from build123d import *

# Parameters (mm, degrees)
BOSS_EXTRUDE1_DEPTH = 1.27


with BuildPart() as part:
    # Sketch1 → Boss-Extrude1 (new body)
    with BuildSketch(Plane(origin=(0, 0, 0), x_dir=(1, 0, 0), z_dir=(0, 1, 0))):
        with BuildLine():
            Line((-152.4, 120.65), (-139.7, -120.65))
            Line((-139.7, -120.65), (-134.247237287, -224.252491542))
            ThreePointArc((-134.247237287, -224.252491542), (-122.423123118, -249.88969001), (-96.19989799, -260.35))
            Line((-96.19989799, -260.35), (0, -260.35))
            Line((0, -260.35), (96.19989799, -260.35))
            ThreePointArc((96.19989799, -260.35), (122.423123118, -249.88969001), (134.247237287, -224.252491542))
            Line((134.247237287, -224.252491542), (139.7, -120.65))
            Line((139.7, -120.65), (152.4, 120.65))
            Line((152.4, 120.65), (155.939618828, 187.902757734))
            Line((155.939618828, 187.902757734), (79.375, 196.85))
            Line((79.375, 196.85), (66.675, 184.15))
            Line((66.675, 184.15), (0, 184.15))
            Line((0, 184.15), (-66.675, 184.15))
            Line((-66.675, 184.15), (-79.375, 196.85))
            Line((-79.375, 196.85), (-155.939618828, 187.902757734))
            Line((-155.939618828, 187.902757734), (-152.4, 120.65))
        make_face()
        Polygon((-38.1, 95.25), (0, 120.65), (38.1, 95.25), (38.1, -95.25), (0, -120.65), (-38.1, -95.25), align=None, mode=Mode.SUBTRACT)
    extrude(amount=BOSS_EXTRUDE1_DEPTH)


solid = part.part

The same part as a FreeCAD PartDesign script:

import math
import FreeCAD as App
import Part
import Sketcher

V = App.Vector
Q = App.Units.Quantity

doc = App.newDocument("Part")
params = doc.addObject("Spreadsheet::Sheet", "Params")
for row, (alias, value) in enumerate([
    ("sketch1_radius", "1.5 in"),
    ("sketch1_height", "7.5 in"),
    ("sketch1_width", "5.25 in"),
    ("pad1_length", "0.05 in"),
], start=1):
    params.set(f"A{row}", alias)
    params.set(f"B{row}", "=" + value)
    params.setAlias(f"B{row}", alias)

body = doc.addObject("PartDesign::Body", "Body")

# Sketch on XZ plane
sketch1 = doc.addObject("Sketcher::SketchObject", "Sketch")
body.addObject(sketch1)
sketch1.AttachmentSupport = (doc.XZ_Plane, [""])
sketch1.MapMode = "FlatFace"
sketch1.addGeometry(Part.LineSegment(V(-152.4, -120.65, 0), V(-139.7, 120.65, 0)), False)
sketch1.addGeometry(Part.LineSegment(V(-139.7, 120.65, 0), V(-134.247237, 224.252492, 0)), False)
sketch1.addGeometry(Part.ArcOfCircle(Part.Circle(V(-96.199898, 222.25, 0), V(0, 0, 1), 38.1), math.radians(90), math.radians(176.987212)), False)
sketch1.addGeometry(Part.LineSegment(V(-96.199898, 260.35, 0), V(96.199898, 260.35, 0)), False)
sketch1.addGeometry(Part.ArcOfCircle(Part.Circle(V(96.199898, 222.25, 0), V(0, 0, 1), 38.1), math.radians(3.012788), math.radians(90)), False)
sketch1.addGeometry(Part.LineSegment(V(134.247237, 224.252492, 0), V(139.7, 120.65, 0)), False)
sketch1.addGeometry(Part.LineSegment(V(139.7, 120.65, 0), V(152.4, -120.65, 0)), False)
sketch1.addGeometry(Part.LineSegment(V(152.4, -120.65, 0), V(155.939619, -187.902758, 0)), False)
sketch1.addGeometry(Part.LineSegment(V(155.939619, -187.902758, 0), V(79.375, -196.85, 0)), False)
sketch1.addGeometry(Part.LineSegment(V(79.375, -196.85, 0), V(66.675, -184.15, 0)), False)
sketch1.addGeometry(Part.LineSegment(V(66.675, -184.15, 0), V(-66.675, -184.15, 0)), False)
sketch1.addGeometry(Part.LineSegment(V(-66.675, -184.15, 0), V(-79.375, -196.85, 0)), False)
sketch1.addGeometry(Part.LineSegment(V(-79.375, -196.85, 0), V(-155.939619, -187.902758, 0)), False)
sketch1.addGeometry(Part.LineSegment(V(-155.939619, -187.902758, 0), V(-152.4, -120.65, 0)), False)
sketch1.addGeometry(Part.LineSegment(V(-38.1, 95.25, 0), V(-38.1, -95.25, 0)), False)
sketch1.addGeometry(Part.LineSegment(V(-38.1, -95.25, 0), V(0, -120.65, 0)), False)
sketch1.addGeometry(Part.LineSegment(V(0, -120.65, 0), V(38.1, -95.25, 0)), False)
sketch1.addGeometry(Part.LineSegment(V(38.1, -95.25, 0), V(38.1, 95.25, 0)), False)
sketch1.addGeometry(Part.LineSegment(V(38.1, 95.25, 0), V(0, 120.65, 0)), False)
sketch1.addGeometry(Part.LineSegment(V(0, 120.65, 0), V(-38.1, 95.25, 0)), False)
sketch1.addConstraint(Sketcher.Constraint("Coincident", 0, 2, 1, 1))
sketch1.addConstraint(Sketcher.Constraint("Tangent", 1, 2, 2, 2))
sketch1.addConstraint(Sketcher.Constraint("Tangent", 2, 1, 3, 1))
sketch1.addConstraint(Sketcher.Constraint("Tangent", 3, 2, 4, 2))
sketch1.addConstraint(Sketcher.Constraint("Tangent", 4, 1, 5, 1))
sketch1.addConstraint(Sketcher.Constraint("Coincident", 5, 2, 6, 1))
sketch1.addConstraint(Sketcher.Constraint("Coincident", 6, 2, 7, 1))
sketch1.addConstraint(Sketcher.Constraint("Coincident", 7, 2, 8, 1))
sketch1.addConstraint(Sketcher.Constraint("Coincident", 8, 2, 9, 1))
sketch1.addConstraint(Sketcher.Constraint("Coincident", 9, 2, 10, 1))
sketch1.addConstraint(Sketcher.Constraint("Coincident", 10, 2, 11, 1))
sketch1.addConstraint(Sketcher.Constraint("Coincident", 11, 2, 12, 1))
sketch1.addConstraint(Sketcher.Constraint("Coincident", 12, 2, 13, 1))
sketch1.addConstraint(Sketcher.Constraint("Coincident", 13, 2, 0, 1))
sketch1.addConstraint(Sketcher.Constraint("Coincident", 14, 2, 15, 1))
sketch1.addConstraint(Sketcher.Constraint("Coincident", 15, 2, 16, 1))
sketch1.addConstraint(Sketcher.Constraint("Coincident", 16, 2, 17, 1))
sketch1.addConstraint(Sketcher.Constraint("Coincident", 17, 2, 18, 1))
sketch1.addConstraint(Sketcher.Constraint("Coincident", 18, 2, 19, 1))
sketch1.addConstraint(Sketcher.Constraint("Coincident", 19, 2, 14, 1))
sketch1.addConstraint(Sketcher.Constraint("Horizontal", 3))
sketch1.addConstraint(Sketcher.Constraint("Horizontal", 10))
sketch1.addConstraint(Sketcher.Constraint("Vertical", 14))
sketch1.addConstraint(Sketcher.Constraint("Vertical", 17))
sketch1.addConstraint(Sketcher.Constraint("Equal", 2, 4))
sketch1.addConstraint(Sketcher.Constraint("Symmetric", 14, 2, 17, 2, -1, 1))
sketch1.addConstraint(Sketcher.Constraint("Symmetric", 15, 2, 18, 2, -1, 1))
sketch1.addConstraint(Sketcher.Constraint("Symmetric", 1, 2, 4, 1, -2))
sketch1.addConstraint(Sketcher.Constraint("Symmetric", 8, 2, 11, 2, -2))
sketch1.addConstraint(Sketcher.Constraint("Symmetric", 7, 2, 12, 2, -2))
sketch1.addConstraint(Sketcher.Constraint("Symmetric", 6, 2, 13, 2, -2))
sketch1.addConstraint(Sketcher.Constraint("PointOnObject", 15, 2, -2))
sketch1.addConstraint(Sketcher.Constraint("Parallel", 0, 1))
sketch1.addConstraint(Sketcher.Constraint("Parallel", 6, 7))
sketch1.addConstraint(Sketcher.Constraint("Perpendicular", 9, 11))
sketch1.addConstraint(Sketcher.Constraint("Parallel", 16, 19))
sketch1.addConstraint(Sketcher.Constraint("Horizontal", 0, 2, 5, 2))
sketch1.addConstraint(Sketcher.Constraint("Horizontal", 13, 2, 15, 2))
sketch1.addConstraint(Sketcher.Constraint("Horizontal", 14, 2, 16, 2))
sketch1.addConstraint(Sketcher.Constraint("Horizontal", 5, 2, 18, 2))
sketch1.addConstraint(Sketcher.Constraint("Equal", 9, 11))
sketch1.addConstraint(Sketcher.Constraint("Radius", 2, Q("1.5 in")))
sketch1.addConstraint(Sketcher.Constraint("DistanceY", 14, 2, 14, 1, Q("7.5 in")))
sketch1.addConstraint(Sketcher.Constraint("DistanceX", -1, 1, 6, 2, Q("6 in")))
sketch1.addConstraint(Sketcher.Constraint("DistanceY", 0, 2, 2, 3, Q("4 in")))
sketch1.addConstraint(Sketcher.Constraint("DistanceY", 6, 2, 3, 2, Q("15 in")))
sketch1.addConstraint(Sketcher.Constraint("DistanceY", 8, 2, 6, 2, Q("3 in")))
sketch1.addConstraint(Sketcher.Constraint("DistanceY", 9, 2, 5, 2, Q("12 in")))
sketch1.addConstraint(Sketcher.Constraint("DistanceX", 14, 2, 16, 2, Q("3 in")))
sketch1.addConstraint(Sketcher.Constraint("DistanceX", 17, 2, 5, 2, Q("4 in")))
sketch1.addConstraint(Sketcher.Constraint("DistanceX", 10, 2, 10, 1, Q("5.25 in")))
sketch1.addConstraint(Sketcher.Constraint("Distance", 7, Q("67.345841 mm")))
sketch1.setExpression("Constraints[41]", "Params.sketch1_radius")
sketch1.setExpression("Constraints[42]", "Params.sketch1_height")
sketch1.setExpression("Constraints[50]", "Params.sketch1_width")
pad1 = doc.addObject("PartDesign::Pad", "Pad")
body.addObject(pad1)
pad1.Profile = sketch1
pad1.setExpression("Length", "Params.pad1_length")
pad1.Reversed = True

doc.recompute()
